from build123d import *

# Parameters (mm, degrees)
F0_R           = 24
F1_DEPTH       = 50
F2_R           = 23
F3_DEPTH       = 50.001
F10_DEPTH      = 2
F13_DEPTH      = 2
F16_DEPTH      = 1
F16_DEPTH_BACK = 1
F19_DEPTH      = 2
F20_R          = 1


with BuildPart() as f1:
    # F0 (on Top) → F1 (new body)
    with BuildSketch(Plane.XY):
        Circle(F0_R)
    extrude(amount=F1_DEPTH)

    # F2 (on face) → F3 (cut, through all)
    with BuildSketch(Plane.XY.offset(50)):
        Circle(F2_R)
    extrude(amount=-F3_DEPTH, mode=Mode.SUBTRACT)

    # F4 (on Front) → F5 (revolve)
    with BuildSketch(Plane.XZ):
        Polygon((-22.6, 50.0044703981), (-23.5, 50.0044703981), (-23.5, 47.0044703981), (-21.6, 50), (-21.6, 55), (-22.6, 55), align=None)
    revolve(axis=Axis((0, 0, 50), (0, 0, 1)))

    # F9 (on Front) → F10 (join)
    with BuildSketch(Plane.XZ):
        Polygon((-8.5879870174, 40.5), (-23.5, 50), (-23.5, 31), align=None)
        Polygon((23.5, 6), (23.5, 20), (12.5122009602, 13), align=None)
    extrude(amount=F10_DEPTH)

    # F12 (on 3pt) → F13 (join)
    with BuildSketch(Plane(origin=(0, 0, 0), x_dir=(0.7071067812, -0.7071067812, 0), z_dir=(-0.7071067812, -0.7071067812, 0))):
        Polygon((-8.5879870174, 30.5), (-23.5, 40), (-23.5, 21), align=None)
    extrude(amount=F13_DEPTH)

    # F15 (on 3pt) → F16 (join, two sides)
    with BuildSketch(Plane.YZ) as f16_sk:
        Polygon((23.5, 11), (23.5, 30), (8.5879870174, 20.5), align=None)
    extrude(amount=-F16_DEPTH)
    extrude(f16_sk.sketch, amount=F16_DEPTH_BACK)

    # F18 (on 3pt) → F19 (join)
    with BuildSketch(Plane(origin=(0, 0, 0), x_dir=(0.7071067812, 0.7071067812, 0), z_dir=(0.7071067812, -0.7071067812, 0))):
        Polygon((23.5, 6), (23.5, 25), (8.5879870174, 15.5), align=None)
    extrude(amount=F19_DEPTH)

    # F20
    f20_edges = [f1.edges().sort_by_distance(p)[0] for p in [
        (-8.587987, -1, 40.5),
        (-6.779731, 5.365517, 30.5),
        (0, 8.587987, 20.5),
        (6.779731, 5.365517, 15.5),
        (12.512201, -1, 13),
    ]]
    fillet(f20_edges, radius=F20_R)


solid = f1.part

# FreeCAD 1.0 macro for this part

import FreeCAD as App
import Part
import Sketcher
Q = App.Units.Quantity


def edges_at(feature, points):
    """Names of the edges that pass closest to the given points."""
    edges = feature.Shape.Edges
    near = lambda p: min(range(len(edges)), key=lambda i: edges[i].distToShape(Part.Vertex(*p))[0])
    return sorted({f"Edge{near(p) + 1}" for p in points})

doc = App.newDocument("Part")
body = doc.addObject("PartDesign::Body", "Body")

# Sketch on XY plane
sketch1 = doc.addObject("Sketcher::SketchObject", "Sketch")
body.addObject(sketch1)
sketch1.AttachmentSupport = (doc.XY_Plane, [""])
sketch1.MapMode = "FlatFace"
sketch1.addGeometry(Part.Circle(App.Vector(0, 0, 0), App.Vector(0, 0, 1), 24), False)
sketch1.addConstraint([
    Sketcher.Constraint("Coincident", 0, 3, -1, 1),
    Sketcher.Constraint("Diameter", 0, 48.0),
])
pad1 = doc.addObject("PartDesign::Pad", "Pad")
body.addObject(pad1)
pad1.Profile = sketch1
pad1.Length = 50

# Sketch on XY plane
sketch2 = doc.addObject("Sketcher::SketchObject", "Sketch001")
body.addObject(sketch2)
sketch2.AttachmentSupport = (doc.XY_Plane, [""])
sketch2.MapMode = "FlatFace"
sketch2.AttachmentOffset = App.Placement(App.Vector(0, 0, 50), App.Rotation())
sketch2.addGeometry(Part.Circle(App.Vector(0, 0, 0), App.Vector(0, 0, 1), 23), False)
sketch2.addConstraint([
    Sketcher.Constraint("Coincident", 0, 3, -1, 1),
    Sketcher.Constraint("Diameter", 0, 46.0),
])
pocket1 = doc.addObject("PartDesign::Pocket", "Pocket")
body.addObject(pocket1)
pocket1.Profile = sketch2
pocket1.Type = "ThroughAll"

# Sketch on XZ plane
sketch3 = doc.addObject("Sketcher::SketchObject", "Sketch002")
body.addObject(sketch3)
sketch3.AttachmentSupport = (doc.XZ_Plane, [""])
sketch3.MapMode = "FlatFace"
sketch3.addGeometry([
    Part.LineSegment(App.Vector(-22.6, 50, 0), App.Vector(-23.5, 50, 0)),  # 0
    Part.LineSegment(App.Vector(-23.5, 50, 0), App.Vector(-23.5, 47, 0)),  # 1
    Part.LineSegment(App.Vector(-23.5, 47, 0), App.Vector(-21.6, 50, 0)),  # 2
    Part.LineSegment(App.Vector(-21.6, 50, 0), App.Vector(-21.6, 55, 0)),  # 3
    Part.LineSegment(App.Vector(-21.6, 55, 0), App.Vector(-22.6, 55, 0)),  # 4
    Part.LineSegment(App.Vector(-22.6, 55, 0), App.Vector(-22.6, 50, 0)),  # 5
], False)
sketch3.addConstraint([
    Sketcher.Constraint("Coincident", 0, 2, 1, 1),
    Sketcher.Constraint("Coincident", 1, 2, 2, 1),
    Sketcher.Constraint("Coincident", 2, 2, 3, 1),
    Sketcher.Constraint("Coincident", 3, 2, 4, 1),
    Sketcher.Constraint("Coincident", 4, 2, 5, 1),
    Sketcher.Constraint("Coincident", 5, 2, 0, 1),
    Sketcher.Constraint("Horizontal", 0),
    Sketcher.Constraint("Vertical", 1),
    Sketcher.Constraint("Vertical", 3),
    Sketcher.Constraint("Horizontal", 4),
    Sketcher.Constraint("Vertical", 5),
    Sketcher.Constraint("DistanceX", 4, 2, 4, 1, 1.0),
    Sketcher.Constraint("DistanceY", 1, 2, 1, 1, 3.0),
    Sketcher.Constraint("DistanceY", 3, 1, 3, 2, 5.0),
    Sketcher.Constraint("DistanceX", 0, 2, 0, 1, 0.9),
    Sketcher.Constraint("DistanceY", -1, 1, 2, 2, 50.0),
    Sketcher.Constraint("DistanceX", 0, 2, -1, 1, 23.5),
    Sketcher.Constraint("DistanceY", 5, 2, 5, 1, 4.99553),
])
revolution = doc.addObject("PartDesign::Revolution", "Revolution")
body.addObject(revolution)
revolution.Profile = sketch3
revolution.ReferenceAxis = (sketch3, ["V_Axis"])
revolution.Angle = 360

# Sketch on XZ plane
sketch4 = doc.addObject("Sketcher::SketchObject", "Sketch003")
body.addObject(sketch4)
sketch4.AttachmentSupport = (doc.XZ_Plane, [""])
sketch4.MapMode = "FlatFace"
sketch4.addGeometry([
    Part.LineSegment(App.Vector(-9, 40, 0), App.Vector(-24, 50, 0)),  # 0
    Part.LineSegment(App.Vector(-24, 50, 0), App.Vector(-24, 31, 0)),  # 1
    Part.LineSegment(App.Vector(-24, 31, 0), App.Vector(-9, 40, 0)),  # 2
    Part.LineSegment(App.Vector(24, 6, 0), App.Vector(24, 20, 0)),  # 3
    Part.LineSegment(App.Vector(24, 20, 0), App.Vector(13, 13, 0)),  # 4
    Part.LineSegment(App.Vector(13, 13, 0), App.Vector(24, 6, 0)),  # 5
], False)
sketch4.addConstraint([
    Sketcher.Constraint("Coincident", 0, 2, 1, 1),
    Sketcher.Constraint("Coincident", 1, 2, 2, 1),
    Sketcher.Constraint("Coincident", 2, 2, 0, 1),
    Sketcher.Constraint("Coincident", 3, 2, 4, 1),
    Sketcher.Constraint("Coincident", 4, 2, 5, 1),
    Sketcher.Constraint("Coincident", 5, 2, 3, 1),
    Sketcher.Constraint("Vertical", 1),
    Sketcher.Constraint("Vertical", 3),
    Sketcher.Constraint("Parallel", 2, 4),
    Sketcher.Constraint("Parallel", 0, 5),
    Sketcher.Constraint("Equal", 0, 2),
    Sketcher.Constraint("DistanceY", 1, 2, 1, 1, 19.0),
    Sketcher.Constraint("DistanceY", 3, 1, 3, 2, 14.0),
    Sketcher.Constraint("DistanceY", -1, 1, 0, 2, 50.0),
    Sketcher.Constraint("DistanceY", -1, 1, 3, 2, 20.0),
    Sketcher.Constraint("Angle", 0, Q("147.5 deg")),
    Sketcher.Constraint("DistanceX", 1, 2, 3, 2, 47.0),
    Sketcher.Constraint("DistanceX", 0, 2, -1, 1, 23.5),
])
pad2 = doc.addObject("PartDesign::Pad", "Pad001")
body.addObject(pad2)
pad2.Profile = sketch4
pad2.Length = 2

# Sketch on an angled plane
sketch5 = doc.addObject("Sketcher::SketchObject", "Sketch004")
body.addObject(sketch5)
sketch5.Placement = App.Placement(App.Vector(0, 0, 0), App.Rotation(App.Vector(0.707106781, -0.707106781, 0), App.Vector(0, 0, 0.999999999), App.Vector(-0.707106781, -0.707106781, 0), "ZXY"))
sketch5.addGeometry([
    Part.LineSegment(App.Vector(-9, 30, 0), App.Vector(-23, 40, 0)),
    Part.LineSegment(App.Vector(-23, 40, 0), App.Vector(-23, 21, 0)),
    Part.LineSegment(App.Vector(-23, 21, 0), App.Vector(-9, 30, 0)),
], False)
sketch5.addConstraint([
    Sketcher.Constraint("Coincident", 0, 2, 1, 1),
    Sketcher.Constraint("Coincident", 1, 2, 2, 1),
    Sketcher.Constraint("Coincident", 2, 2, 0, 1),
    Sketcher.Constraint("Vertical", 1),
    Sketcher.Constraint("Equal", 0, 2),
    Sketcher.Constraint("DistanceY", 1, 2, 1, 1, 19.0),
    Sketcher.Constraint("DistanceY", -1, 1, 0, 2, 40.0),
    Sketcher.Constraint("Angle", 0, Q("147.5 deg")),
    Sketcher.Constraint("DistanceX", 0, 2, -1, 1, 23.5),
])
pad3 = doc.addObject("PartDesign::Pad", "Pad002")
body.addObject(pad3)
pad3.Profile = sketch5
pad3.Length = 2

# Sketch on YZ plane
sketch6 = doc.addObject("Sketcher::SketchObject", "Sketch005")
body.addObject(sketch6)
sketch6.AttachmentSupport = (doc.YZ_Plane, [""])
sketch6.MapMode = "FlatFace"
sketch6.addGeometry([
    Part.LineSegment(App.Vector(24, 11, 0), App.Vector(24, 30, 0)),
    Part.LineSegment(App.Vector(24, 30, 0), App.Vector(9, 20, 0)),
    Part.LineSegment(App.Vector(9, 20, 0), App.Vector(24, 11, 0)),
], False)
sketch6.addConstraint([
    Sketcher.Constraint("Coincident", 0, 2, 1, 1),
    Sketcher.Constraint("Coincident", 1, 2, 2, 1),
    Sketcher.Constraint("Coincident", 2, 2, 0, 1),
    Sketcher.Constraint("Vertical", 0),
    Sketcher.Constraint("Equal", 1, 2),
    Sketcher.Constraint("DistanceY", 0, 1, 0, 2, 19.0),
    Sketcher.Constraint("DistanceY", -1, 1, 0, 2, 30.0),
    Sketcher.Constraint("Angle", 1, Q("-147.5 deg")),
    Sketcher.Constraint("DistanceX", -1, 1, 0, 2, 23.5),
])
pad4 = doc.addObject("PartDesign::Pad", "Pad003")
body.addObject(pad4)
pad4.Profile = sketch6
pad4.Type = "TwoLengths"
pad4.Length = 1
pad4.Length2 = 1
pad4.Reversed = True

# Sketch on an angled plane
sketch7 = doc.addObject("Sketcher::SketchObject", "Sketch006")
body.addObject(sketch7)
sketch7.Placement = App.Placement(App.Vector(0, 0, 0), App.Rotation(App.Vector(0.707106781, 0.707106781, 0), App.Vector(0, 0, 0.999999999), App.Vector(0.707106781, -0.707106781, 0), "ZXY"))
sketch7.addGeometry([
    Part.LineSegment(App.Vector(23, 6, 0), App.Vector(23, 25, 0)),
    Part.LineSegment(App.Vector(23, 25, 0), App.Vector(9, 15, 0)),
    Part.LineSegment(App.Vector(9, 15, 0), App.Vector(23, 6, 0)),
], False)
sketch7.addConstraint([
    Sketcher.Constraint("Coincident", 0, 2, 1, 1),
    Sketcher.Constraint("Coincident", 1, 2, 2, 1),
    Sketcher.Constraint("Coincident", 2, 2, 0, 1),
    Sketcher.Constraint("Vertical", 0),
    Sketcher.Constraint("Equal", 1, 2),
    Sketcher.Constraint("DistanceY", 0, 1, 0, 2, 19.0),
    Sketcher.Constraint("DistanceY", -1, 1, 0, 2, 25.0),
    Sketcher.Constraint("Angle", 1, Q("-147.5 deg")),
    Sketcher.Constraint("DistanceX", -1, 1, 0, 2, 23.5),
])
pad5 = doc.addObject("PartDesign::Pad", "Pad004")
body.addObject(pad5)
pad5.Profile = sketch7
pad5.Length = 2
doc.recompute()

fillet = doc.addObject("PartDesign::Fillet", "Fillet")
body.addObject(fillet)
fillet.Base = (pad5, edges_at(pad5, [
    (-8.588, -1, 40.5),
    (-6.78, 5.366, 30.5),
    (0, 8.588, 20.5),
    (6.78, 5.366, 15.5),
    (12.512, -1, 13),
]))
fillet.Radius = 1

doc.recompute()
